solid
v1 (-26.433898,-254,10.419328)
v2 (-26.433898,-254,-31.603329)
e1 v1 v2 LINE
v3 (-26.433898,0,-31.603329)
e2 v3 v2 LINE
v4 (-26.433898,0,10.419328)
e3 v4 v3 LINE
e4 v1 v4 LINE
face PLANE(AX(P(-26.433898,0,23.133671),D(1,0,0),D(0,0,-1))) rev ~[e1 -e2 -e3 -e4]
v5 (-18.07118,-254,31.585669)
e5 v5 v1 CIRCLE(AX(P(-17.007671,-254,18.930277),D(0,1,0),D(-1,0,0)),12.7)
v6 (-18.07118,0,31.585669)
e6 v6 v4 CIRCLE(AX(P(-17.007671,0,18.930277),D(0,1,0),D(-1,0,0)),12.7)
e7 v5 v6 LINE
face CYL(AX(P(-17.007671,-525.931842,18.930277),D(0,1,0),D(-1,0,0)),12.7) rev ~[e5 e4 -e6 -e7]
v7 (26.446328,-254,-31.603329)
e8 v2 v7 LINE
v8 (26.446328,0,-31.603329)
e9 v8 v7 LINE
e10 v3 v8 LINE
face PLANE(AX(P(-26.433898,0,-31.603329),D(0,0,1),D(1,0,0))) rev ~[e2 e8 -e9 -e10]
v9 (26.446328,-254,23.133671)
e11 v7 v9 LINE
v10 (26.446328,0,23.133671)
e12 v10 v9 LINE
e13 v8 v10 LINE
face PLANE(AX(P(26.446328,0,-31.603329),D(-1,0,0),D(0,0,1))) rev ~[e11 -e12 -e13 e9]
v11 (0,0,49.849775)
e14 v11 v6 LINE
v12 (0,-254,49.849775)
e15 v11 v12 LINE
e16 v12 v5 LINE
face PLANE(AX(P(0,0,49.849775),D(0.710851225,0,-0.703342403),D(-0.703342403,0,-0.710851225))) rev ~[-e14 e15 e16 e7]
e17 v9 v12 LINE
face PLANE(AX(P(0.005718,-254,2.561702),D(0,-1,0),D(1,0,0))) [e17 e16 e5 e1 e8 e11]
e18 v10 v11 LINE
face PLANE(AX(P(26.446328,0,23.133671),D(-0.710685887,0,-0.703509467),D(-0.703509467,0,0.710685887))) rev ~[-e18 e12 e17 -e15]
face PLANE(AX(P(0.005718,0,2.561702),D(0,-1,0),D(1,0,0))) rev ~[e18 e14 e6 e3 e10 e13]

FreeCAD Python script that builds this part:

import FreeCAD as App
import Part
import Sketcher
from FreeCAD import Vector
Q = App.Units.Quantity


def add_polygon(sketch, points):
    """Adds a closed chain of lines whose ends are joined by coincident constraints."""
    first, n = sketch.GeometryCount, len(points)
    for a, b in zip(points, points[1:] + points[:1]):
        sketch.addGeometry(Part.LineSegment(App.Vector(*a, 0), App.Vector(*b, 0)), False)
    for i in range(n):
        sketch.addConstraint(Sketcher.Constraint("Coincident", first + i, 2, first + (i + 1) % n, 1))

doc = App.newDocument("Part")
params = doc.addObject("Spreadsheet::Sheet", "Params")
for row, (alias, value) in enumerate([
    ("sketch1_length", "1.48 in"),
    ("sketch1_height", "2.155 in"),
    ("pad1_length", "10 in"),
    ("sketch2_diameter", "1 in"),
    ("hole_diameter", "1 in"),
], start=1):
    params.set(f"A{row}", alias)
    params.set(f"B{row}", "=" + value)
    params.setAlias(f"B{row}", alias)

body = doc.addObject("PartDesign::Body", "Body")

sketch1 = body.newObject("Sketcher::SketchObject", "Sketch")
sketch1.AttachmentSupport = (doc.getObject("XZ_Plane"), [""])
sketch1.MapMode = "FlatFace"
add_polygon(sketch1, [(0, 50), (-26, 23), (-26, -32), (26, -32), (26, 23)])
sketch1.addConstraint([
    Sketcher.Constraint("Vertical", 1),
    Sketcher.Constraint("Horizontal", 2),
    Sketcher.Constraint("Vertical", 3),
    Sketcher.Constraint("PointOnObject", 4, 2, -2),
    Sketcher.Constraint("Horizontal", 0, 2, 3, 2),
    Sketcher.Constraint("Distance", 4, Q("1.48 in")),
    Sketcher.Constraint("DistanceY", 1, 2, 1, 1, Q("2.155 in")),
    Sketcher.Constraint("DistanceX", 2, 1, 2, 2, 52.880226),
    Sketcher.Constraint("DistanceY", -1, 1, 0, 2, 23.133671),
    Sketcher.Constraint("DistanceX", -1, 1, 2, 2, 26.446328),
])
sketch1.setExpression("Constraints[10]", "Params.sketch1_length")
sketch1.setExpression("Constraints[11]", "Params.sketch1_height")
pad1 = body.newObject("PartDesign::Pad", "Pad")
pad1.Profile = sketch1
pad1.setExpression("Length", "Params.pad1_length")

sketch2 = body.newObject("Sketcher::SketchObject", "Sketch001")
sketch2.AttachmentSupport = (doc.getObject("XZ_Plane"), [""])
sketch2.MapMode = "FlatFace"
sketch2.AttachmentOffset = App.Placement(Vector(0, 0, 10 * 25.4), App.Rotation())
sketch2.addGeometry(Part.Circle(Vector(-17, 19, 0), Vector(0, 0, 1), 13), False)
sketch2.addConstraint([
    Sketcher.Constraint("Diameter", 0, Q("1 in")),
    Sketcher.Constraint("DistanceX", 0, 3, -1, 1, 17.007671),
    Sketcher.Constraint("DistanceY", -1, 1, 0, 3, 18.930277),
])
sketch2.setExpression("Constraints[0]", "Params.sketch2_diameter")
doc.recompute()
hole = body.newObject("PartDesign::Hole", "Hole")
hole.Profile = sketch2
hole.ThreadType = "None"
hole.setExpression("Diameter", "Params.hole_diameter")
hole.DepthType = "ThroughAll"

doc.recompute()
